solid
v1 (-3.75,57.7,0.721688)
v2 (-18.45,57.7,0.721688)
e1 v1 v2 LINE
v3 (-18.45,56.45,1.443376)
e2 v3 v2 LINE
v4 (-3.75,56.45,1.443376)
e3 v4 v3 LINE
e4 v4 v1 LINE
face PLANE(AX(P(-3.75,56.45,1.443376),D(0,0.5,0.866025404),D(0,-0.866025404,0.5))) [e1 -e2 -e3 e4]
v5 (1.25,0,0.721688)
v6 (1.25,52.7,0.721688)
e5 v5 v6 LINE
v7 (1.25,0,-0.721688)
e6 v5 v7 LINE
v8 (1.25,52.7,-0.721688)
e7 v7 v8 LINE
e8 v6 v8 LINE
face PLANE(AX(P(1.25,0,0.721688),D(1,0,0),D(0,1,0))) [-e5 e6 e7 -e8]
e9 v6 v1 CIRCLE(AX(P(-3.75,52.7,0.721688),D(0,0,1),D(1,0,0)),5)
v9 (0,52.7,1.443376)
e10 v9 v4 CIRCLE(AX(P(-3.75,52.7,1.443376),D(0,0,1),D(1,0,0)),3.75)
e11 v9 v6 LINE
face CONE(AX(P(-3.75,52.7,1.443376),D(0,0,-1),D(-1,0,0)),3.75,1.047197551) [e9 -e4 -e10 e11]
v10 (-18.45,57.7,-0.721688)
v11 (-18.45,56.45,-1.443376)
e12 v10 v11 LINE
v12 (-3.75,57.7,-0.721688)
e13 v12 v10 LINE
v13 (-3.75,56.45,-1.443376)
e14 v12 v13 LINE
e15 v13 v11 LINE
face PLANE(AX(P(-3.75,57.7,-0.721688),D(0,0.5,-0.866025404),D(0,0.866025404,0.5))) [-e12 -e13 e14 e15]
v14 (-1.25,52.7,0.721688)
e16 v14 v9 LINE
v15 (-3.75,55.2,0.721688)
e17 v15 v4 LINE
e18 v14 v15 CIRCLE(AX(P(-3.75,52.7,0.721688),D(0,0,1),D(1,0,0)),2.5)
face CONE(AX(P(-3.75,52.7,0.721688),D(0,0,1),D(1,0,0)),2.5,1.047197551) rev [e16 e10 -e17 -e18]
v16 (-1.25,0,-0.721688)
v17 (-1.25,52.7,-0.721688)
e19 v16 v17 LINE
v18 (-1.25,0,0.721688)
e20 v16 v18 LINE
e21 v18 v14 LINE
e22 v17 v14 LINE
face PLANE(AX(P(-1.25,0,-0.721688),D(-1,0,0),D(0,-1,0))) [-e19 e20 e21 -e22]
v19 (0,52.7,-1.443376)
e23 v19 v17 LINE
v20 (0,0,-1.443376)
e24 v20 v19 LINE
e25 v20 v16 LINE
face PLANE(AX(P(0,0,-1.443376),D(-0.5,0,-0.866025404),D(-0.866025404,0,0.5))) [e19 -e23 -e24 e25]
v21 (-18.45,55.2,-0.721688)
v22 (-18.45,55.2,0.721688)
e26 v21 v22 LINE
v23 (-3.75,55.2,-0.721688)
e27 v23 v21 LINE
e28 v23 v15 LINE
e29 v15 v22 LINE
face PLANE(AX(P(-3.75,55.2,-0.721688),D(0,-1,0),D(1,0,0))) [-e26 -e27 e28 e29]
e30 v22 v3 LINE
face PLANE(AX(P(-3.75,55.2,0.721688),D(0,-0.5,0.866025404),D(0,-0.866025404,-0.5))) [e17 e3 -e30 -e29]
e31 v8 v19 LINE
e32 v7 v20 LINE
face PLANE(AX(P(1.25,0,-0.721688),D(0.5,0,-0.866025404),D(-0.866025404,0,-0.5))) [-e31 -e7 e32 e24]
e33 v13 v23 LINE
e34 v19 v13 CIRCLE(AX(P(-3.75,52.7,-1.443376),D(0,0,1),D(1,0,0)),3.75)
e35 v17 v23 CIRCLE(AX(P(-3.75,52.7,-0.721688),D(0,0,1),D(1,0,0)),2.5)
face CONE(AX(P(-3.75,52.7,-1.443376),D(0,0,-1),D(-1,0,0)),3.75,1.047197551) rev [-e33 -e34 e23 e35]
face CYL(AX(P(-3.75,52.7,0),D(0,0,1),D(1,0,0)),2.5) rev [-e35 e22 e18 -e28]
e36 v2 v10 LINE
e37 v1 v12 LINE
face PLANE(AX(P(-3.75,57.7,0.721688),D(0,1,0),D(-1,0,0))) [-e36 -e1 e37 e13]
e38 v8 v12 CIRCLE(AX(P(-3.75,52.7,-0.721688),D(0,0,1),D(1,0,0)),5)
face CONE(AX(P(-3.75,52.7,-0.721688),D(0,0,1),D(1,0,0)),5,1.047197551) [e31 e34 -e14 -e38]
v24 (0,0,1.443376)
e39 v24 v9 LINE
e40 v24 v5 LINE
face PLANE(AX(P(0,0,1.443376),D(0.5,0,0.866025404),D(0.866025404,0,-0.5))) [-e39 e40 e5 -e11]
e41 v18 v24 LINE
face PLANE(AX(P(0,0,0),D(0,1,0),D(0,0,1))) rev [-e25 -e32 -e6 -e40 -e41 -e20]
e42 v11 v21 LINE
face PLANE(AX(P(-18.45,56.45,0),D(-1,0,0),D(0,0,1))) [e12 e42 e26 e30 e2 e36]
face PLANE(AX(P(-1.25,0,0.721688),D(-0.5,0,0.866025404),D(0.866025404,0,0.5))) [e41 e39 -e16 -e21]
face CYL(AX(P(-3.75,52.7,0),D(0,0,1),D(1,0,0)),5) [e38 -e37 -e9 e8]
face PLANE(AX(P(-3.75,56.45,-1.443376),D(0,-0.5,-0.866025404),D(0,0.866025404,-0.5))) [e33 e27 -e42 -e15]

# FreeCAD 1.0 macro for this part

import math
import FreeCAD as App
import Part
import Sketcher

V = App.Vector
Q = App.Units.Quantity

doc = App.newDocument("Part")
body = doc.addObject("PartDesign::Body", "Body")

sketch1 = body.newObject("Sketcher::SketchObject", "Sketch")
sketch1.AttachmentSupport = (doc.getObject("XZ_Plane"), [""])
sketch1.MapMode = "FlatFace"
sketch1.addGeometry([
    Part.LineSegment(V(0, -1.4, 0), V(-1.2, -0.7, 0)),
    Part.LineSegment(V(-1.2, -0.7, 0), V(-1.2, 0.7, 0)),
    Part.LineSegment(V(-1.2, 0.7, 0), V(0, 1.4, 0)),
    Part.LineSegment(V(0, 1.4, 0), V(1.2, 0.7, 0)),
    Part.LineSegment(V(1.2, 0.7, 0), V(1.2, -0.7, 0)),
    Part.LineSegment(V(1.2, -0.7, 0), V(0, -1.4, 0)),
], False)
sketch1.addConstraint([
    Sketcher.Constraint("Coincident", 0, 2, 1, 1),
    Sketcher.Constraint("Coincident", 1, 2, 2, 1),
    Sketcher.Constraint("Coincident", 2, 2, 3, 1),
    Sketcher.Constraint("Coincident", 3, 2, 4, 1),
    Sketcher.Constraint("Coincident", 4, 2, 5, 1),
    Sketcher.Constraint("Coincident", 5, 2, 0, 1),
    Sketcher.Constraint("Vertical", 1),
    Sketcher.Constraint("Vertical", 4),
    Sketcher.Constraint("Symmetric", 0, 2, 3, 2, -1, 1),
    Sketcher.Constraint("Symmetric", 2, 2, 5, 2, -1, 1),
    Sketcher.Constraint("PointOnObject", 2, 2, -2),
    Sketcher.Constraint("Parallel", 2, 5),
    Sketcher.Constraint("Horizontal", 1, 2, 3, 2),
    Sketcher.Constraint("Angle", 0, Q("150 deg")),
    Sketcher.Constraint("DistanceX", 1, 2, 3, 2, 2.5),
    Sketcher.Constraint("DistanceY", 1, 1, 1, 2, 1.443376),
])

sketch2 = body.newObject("Sketcher::SketchObject", "Sketch001")
sketch2.AttachmentSupport = (doc.getObject("XY_Plane"), [""])
sketch2.MapMode = "FlatFace"
sketch2.addGeometry([
    Part.LineSegment(V(0, 0, 0), V(0, 52.7, 0)),
    Part.ArcOfCircle(Part.Circle(V(-3.8, 52.7, 0), V(0, 0, 1), 3.8), math.radians(0), math.radians(90)),
    Part.LineSegment(V(-3.8, 56.5, 0), V(-18.4, 56.5, 0)),
], False)
sketch2.addConstraint([
    Sketcher.Constraint("Tangent", 0, 2, 1, 1),
    Sketcher.Constraint("Tangent", 1, 2, 2, 1),
    Sketcher.Constraint("Vertical", 0),
    Sketcher.Constraint("Horizontal", 2),
    Sketcher.Constraint("Coincident", 0, 1, -1, 1),
    Sketcher.Constraint("Radius", 1, 3.75),
    Sketcher.Constraint("DistanceX", 2, 2, 2, 1, 14.7),
    Sketcher.Constraint("DistanceY", 0, 1, 0, 2, 52.7),
])
doc.recompute()

additivepipe = body.newObject("PartDesign::AdditivePipe", "AdditivePipe")
additivepipe.Profile = sketch1
additivepipe.Spine = (sketch2, ["Edge1", "Edge2", "Edge3"])

doc.recompute()
